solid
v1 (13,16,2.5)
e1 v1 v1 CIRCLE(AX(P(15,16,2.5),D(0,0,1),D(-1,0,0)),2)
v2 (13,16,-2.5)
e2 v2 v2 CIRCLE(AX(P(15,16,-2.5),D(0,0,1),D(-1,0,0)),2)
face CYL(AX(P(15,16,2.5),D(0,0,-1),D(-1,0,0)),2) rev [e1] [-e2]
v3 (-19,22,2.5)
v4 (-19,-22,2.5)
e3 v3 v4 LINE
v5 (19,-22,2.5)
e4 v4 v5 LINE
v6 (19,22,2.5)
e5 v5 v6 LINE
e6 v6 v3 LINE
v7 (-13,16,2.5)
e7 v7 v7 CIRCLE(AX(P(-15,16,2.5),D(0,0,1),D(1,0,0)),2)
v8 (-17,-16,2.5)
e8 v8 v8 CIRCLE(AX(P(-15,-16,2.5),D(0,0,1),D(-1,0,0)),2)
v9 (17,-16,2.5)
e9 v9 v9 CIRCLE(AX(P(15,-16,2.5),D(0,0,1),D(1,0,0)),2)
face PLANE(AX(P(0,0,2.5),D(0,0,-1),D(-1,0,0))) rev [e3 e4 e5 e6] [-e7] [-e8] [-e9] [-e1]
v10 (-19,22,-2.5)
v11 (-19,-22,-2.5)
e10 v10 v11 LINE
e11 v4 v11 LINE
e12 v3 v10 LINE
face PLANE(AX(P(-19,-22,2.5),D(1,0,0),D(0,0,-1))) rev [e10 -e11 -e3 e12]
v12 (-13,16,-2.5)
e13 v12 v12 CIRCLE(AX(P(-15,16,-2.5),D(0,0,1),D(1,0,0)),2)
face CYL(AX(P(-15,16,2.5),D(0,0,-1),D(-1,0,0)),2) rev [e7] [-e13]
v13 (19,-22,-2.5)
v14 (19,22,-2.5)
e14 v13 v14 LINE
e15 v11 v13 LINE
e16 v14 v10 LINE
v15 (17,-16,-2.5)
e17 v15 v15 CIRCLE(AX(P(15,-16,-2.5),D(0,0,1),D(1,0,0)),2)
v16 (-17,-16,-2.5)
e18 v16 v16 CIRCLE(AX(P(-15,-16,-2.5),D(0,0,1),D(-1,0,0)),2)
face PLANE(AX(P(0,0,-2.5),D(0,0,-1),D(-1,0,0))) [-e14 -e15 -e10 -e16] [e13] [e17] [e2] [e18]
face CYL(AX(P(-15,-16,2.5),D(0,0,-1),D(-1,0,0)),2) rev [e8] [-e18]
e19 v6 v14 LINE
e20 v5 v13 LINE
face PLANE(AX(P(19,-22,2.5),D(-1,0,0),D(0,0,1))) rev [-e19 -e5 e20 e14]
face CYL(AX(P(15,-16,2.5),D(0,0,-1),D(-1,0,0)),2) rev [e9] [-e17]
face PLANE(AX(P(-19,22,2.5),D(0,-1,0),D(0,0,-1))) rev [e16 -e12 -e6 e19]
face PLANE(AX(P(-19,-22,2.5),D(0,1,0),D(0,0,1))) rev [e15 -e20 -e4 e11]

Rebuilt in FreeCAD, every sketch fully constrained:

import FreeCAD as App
import Part
import Sketcher

doc = App.newDocument("Part")
params = doc.addObject("Spreadsheet::Sheet", "Params")
for row, (alias, value) in enumerate([
    ("sketch1_diameter", "4 mm"),
    ("sketch1_width", "38 mm"),
    ("sketch1_height", "44 mm"),
    ("pad1_length", "5 mm"),
], start=1):
    params.set(f"A{row}", alias)
    params.set(f"B{row}", "=" + value)
    params.setAlias(f"B{row}", alias)

body = doc.addObject("PartDesign::Body", "Body")

sketch1 = body.newObject("Sketcher::SketchObject", "Sketch")
sketch1.AttachmentSupport = (doc.getObject("XY_Plane"), [""])
sketch1.MapMode = "FlatFace"
sketch1.addGeometry([
    Part.LineSegment(App.Vector(-19, 22, 0), App.Vector(-19, -22, 0)),
    Part.LineSegment(App.Vector(-19, -22, 0), App.Vector(19, -22, 0)),
    Part.LineSegment(App.Vector(19, -22, 0), App.Vector(19, 22, 0)),
    Part.LineSegment(App.Vector(19, 22, 0), App.Vector(-19, 22, 0)),
    Part.Circle(App.Vector(-15, -16, 0), App.Vector(0, 0, 1), 2),
    Part.Circle(App.Vector(15, -16, 0), App.Vector(0, 0, 1), 2),
    Part.Circle(App.Vector(-15, 16, 0), App.Vector(0, 0, 1), 2),
    Part.Circle(App.Vector(15, 16, 0), App.Vector(0, 0, 1), 2),
], False)
sketch1.addConstraint([
    Sketcher.Constraint("Coincident", 0, 2, 1, 1),
    Sketcher.Constraint("Coincident", 1, 2, 2, 1),
    Sketcher.Constraint("Coincident", 2, 2, 3, 1),
    Sketcher.Constraint("Coincident", 3, 2, 0, 1),
    Sketcher.Constraint("Vertical", 0),
    Sketcher.Constraint("Horizontal", 1),
    Sketcher.Constraint("Vertical", 2),
    Sketcher.Constraint("Horizontal", 3),
    Sketcher.Constraint("Equal", 4, 5),
    Sketcher.Constraint("Equal", 5, 6),
    Sketcher.Constraint("Equal", 6, 7),
    Sketcher.Constraint("Symmetric", 5, 3, 6, 3, -1, 1),
    Sketcher.Constraint("Symmetric", 4, 3, 7, 3, -1, 1),
    Sketcher.Constraint("Symmetric", 0, 2, 2, 2, -1, 1),
    Sketcher.Constraint("Symmetric", 4, 3, 5, 3, -2),
    Sketcher.Constraint("Diameter", 4, 4.0),
    Sketcher.Constraint("DistanceX", 1, 1, 1, 2, 38.0),
    Sketcher.Constraint("DistanceY", 0, 2, 0, 1, 44.0),
    Sketcher.Constraint("DistanceX", 4, 3, -1, 1, 15.0),
    Sketcher.Constraint("DistanceY", 4, 3, -1, 1, 16.0),
])
sketch1.setExpression("Constraints[15]", "Params.sketch1_diameter")
sketch1.setExpression("Constraints[16]", "Params.sketch1_width")
sketch1.setExpression("Constraints[17]", "Params.sketch1_height")
pad1 = body.newObject("PartDesign::Pad", "Pad")
pad1.Profile = sketch1
pad1.setExpression("Length", "Params.pad1_length")
pad1.Midplane = True

doc.recompute()
